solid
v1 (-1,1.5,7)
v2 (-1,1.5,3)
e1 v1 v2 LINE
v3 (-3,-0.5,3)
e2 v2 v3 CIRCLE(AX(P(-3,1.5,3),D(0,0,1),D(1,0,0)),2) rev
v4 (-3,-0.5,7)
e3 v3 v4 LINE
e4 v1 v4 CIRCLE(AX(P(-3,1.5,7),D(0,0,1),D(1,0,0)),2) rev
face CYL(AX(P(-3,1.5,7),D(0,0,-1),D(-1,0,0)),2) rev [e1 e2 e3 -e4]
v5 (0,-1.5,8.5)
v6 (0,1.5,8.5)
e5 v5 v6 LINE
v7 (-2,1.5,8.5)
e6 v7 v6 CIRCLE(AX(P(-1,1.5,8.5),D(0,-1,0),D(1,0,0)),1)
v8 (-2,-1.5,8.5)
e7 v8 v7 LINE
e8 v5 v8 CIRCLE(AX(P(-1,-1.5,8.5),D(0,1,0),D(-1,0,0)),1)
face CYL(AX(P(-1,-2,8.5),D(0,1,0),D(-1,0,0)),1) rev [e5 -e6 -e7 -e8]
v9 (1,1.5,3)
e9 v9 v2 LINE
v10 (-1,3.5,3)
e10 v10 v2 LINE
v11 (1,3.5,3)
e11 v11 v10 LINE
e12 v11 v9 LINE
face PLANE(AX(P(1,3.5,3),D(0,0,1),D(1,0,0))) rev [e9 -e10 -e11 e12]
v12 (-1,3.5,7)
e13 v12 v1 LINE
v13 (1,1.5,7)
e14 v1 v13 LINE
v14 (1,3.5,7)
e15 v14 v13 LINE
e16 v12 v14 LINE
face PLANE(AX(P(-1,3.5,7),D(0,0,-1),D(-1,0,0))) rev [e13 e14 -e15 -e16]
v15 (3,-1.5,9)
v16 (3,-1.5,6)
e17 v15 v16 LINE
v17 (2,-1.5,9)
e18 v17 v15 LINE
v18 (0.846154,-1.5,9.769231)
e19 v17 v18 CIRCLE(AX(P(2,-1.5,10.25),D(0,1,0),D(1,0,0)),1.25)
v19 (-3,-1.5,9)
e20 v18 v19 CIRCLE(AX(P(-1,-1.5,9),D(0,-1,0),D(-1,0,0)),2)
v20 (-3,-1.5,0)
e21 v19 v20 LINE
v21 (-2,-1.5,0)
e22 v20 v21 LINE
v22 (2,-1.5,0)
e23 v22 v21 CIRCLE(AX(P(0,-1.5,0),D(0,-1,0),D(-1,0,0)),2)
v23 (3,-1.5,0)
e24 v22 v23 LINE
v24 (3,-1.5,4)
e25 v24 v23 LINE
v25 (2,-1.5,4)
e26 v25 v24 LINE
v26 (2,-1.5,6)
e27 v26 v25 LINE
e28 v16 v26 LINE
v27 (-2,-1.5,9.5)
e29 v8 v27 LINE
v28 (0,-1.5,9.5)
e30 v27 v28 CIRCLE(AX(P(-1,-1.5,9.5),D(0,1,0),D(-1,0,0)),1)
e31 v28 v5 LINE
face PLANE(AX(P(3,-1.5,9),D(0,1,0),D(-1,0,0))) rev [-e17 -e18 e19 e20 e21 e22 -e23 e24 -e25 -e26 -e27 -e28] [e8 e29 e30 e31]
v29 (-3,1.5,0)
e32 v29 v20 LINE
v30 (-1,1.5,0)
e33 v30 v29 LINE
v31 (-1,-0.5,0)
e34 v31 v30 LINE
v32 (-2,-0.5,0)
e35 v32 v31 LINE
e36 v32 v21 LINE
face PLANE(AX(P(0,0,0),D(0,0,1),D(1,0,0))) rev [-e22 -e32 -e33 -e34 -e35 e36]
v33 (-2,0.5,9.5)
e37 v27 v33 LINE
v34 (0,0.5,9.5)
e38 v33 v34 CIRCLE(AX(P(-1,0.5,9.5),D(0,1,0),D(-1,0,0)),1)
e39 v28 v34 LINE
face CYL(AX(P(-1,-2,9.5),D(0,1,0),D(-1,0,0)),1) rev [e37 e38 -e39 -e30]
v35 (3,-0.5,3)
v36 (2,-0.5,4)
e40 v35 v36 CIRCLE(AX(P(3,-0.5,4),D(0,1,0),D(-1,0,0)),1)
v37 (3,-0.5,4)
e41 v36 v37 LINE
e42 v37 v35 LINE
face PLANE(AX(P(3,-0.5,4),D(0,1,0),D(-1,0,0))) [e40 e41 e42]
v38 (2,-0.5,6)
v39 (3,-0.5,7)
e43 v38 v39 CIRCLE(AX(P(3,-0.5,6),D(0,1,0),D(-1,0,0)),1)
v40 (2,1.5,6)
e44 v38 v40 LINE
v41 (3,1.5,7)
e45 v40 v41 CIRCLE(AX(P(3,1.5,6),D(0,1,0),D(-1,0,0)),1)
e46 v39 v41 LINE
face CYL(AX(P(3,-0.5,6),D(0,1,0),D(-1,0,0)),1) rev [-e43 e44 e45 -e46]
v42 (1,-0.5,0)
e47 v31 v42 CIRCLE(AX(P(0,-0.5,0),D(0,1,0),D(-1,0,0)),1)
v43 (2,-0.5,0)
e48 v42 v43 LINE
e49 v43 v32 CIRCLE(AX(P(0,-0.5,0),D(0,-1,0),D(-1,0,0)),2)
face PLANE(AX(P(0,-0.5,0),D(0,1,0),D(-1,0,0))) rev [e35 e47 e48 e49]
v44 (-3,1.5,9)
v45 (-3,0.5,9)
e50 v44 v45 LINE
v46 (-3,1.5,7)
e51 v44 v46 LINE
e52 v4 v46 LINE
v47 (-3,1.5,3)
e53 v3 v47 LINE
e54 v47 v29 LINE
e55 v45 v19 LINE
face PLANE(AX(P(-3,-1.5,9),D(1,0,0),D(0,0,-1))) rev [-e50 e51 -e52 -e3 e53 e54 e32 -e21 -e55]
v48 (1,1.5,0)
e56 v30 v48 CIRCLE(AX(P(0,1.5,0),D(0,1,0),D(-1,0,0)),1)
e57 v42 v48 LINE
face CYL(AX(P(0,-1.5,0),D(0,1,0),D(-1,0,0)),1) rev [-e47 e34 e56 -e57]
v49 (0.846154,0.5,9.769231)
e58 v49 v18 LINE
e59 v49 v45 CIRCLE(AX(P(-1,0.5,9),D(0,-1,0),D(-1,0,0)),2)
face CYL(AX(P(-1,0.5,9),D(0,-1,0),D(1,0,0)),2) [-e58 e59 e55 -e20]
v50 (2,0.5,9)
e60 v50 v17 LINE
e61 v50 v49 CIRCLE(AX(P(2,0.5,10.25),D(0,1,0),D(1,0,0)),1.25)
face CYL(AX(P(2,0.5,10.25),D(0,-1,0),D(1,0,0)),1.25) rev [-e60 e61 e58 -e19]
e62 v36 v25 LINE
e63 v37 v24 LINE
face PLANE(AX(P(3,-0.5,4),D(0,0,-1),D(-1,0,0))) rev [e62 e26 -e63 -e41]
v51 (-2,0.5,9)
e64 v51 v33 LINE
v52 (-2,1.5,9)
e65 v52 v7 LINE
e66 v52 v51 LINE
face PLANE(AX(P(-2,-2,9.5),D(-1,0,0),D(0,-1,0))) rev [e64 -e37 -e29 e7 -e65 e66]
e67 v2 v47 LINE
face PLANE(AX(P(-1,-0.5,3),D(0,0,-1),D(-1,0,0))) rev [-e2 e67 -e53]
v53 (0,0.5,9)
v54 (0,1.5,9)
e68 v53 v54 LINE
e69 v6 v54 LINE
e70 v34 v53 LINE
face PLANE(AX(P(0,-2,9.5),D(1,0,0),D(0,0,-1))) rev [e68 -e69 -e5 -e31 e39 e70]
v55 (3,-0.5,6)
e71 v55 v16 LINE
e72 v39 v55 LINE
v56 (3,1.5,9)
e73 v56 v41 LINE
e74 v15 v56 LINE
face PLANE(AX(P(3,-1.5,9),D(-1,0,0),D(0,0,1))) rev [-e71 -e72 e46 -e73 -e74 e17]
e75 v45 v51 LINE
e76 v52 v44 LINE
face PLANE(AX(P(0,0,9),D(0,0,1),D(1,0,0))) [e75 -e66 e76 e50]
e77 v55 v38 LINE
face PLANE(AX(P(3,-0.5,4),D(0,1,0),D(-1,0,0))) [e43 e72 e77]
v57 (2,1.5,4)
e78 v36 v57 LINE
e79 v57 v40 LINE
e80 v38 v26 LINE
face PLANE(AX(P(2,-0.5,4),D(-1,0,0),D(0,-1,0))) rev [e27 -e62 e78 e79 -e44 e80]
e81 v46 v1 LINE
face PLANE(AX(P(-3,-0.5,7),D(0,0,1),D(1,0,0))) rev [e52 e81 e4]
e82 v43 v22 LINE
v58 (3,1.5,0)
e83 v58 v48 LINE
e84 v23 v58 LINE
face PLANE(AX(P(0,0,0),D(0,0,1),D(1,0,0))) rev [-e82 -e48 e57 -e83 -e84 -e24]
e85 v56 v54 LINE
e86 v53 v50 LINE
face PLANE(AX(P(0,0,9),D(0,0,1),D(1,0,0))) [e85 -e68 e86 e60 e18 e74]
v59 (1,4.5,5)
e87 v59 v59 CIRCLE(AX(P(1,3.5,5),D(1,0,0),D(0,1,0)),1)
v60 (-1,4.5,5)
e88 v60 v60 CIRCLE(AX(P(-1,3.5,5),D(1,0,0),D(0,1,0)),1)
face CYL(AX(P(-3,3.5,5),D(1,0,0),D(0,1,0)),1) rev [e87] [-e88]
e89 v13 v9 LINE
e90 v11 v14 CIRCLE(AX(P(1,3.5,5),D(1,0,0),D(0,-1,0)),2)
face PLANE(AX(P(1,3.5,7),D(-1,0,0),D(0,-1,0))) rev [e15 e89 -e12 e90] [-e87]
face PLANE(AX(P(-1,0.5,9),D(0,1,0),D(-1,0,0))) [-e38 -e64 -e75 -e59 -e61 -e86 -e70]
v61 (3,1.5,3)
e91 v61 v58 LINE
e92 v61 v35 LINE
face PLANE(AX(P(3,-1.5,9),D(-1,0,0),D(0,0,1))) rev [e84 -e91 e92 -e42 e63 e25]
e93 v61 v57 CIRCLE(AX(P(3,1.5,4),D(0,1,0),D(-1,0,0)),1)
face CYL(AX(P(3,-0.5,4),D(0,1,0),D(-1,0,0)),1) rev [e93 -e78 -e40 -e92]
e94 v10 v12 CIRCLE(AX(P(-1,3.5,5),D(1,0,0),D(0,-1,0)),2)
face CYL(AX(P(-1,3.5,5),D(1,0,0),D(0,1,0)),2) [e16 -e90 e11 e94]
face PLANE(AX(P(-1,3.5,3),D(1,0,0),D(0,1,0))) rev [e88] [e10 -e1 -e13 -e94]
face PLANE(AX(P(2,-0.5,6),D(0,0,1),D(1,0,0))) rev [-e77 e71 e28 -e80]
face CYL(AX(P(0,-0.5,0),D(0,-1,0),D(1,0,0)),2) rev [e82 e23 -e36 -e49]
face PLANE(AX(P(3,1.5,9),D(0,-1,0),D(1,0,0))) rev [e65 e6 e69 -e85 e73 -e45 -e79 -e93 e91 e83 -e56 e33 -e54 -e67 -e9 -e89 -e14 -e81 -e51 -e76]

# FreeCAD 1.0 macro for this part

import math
import FreeCAD as App
import Part
import Sketcher

doc = App.newDocument("Part")
params = doc.addObject("Spreadsheet::Sheet", "Params")
for row, (alias, value) in enumerate([
    ("sketch1_width", "6 mm"),
    ("sketch1_height", "3 mm"),
    ("pad1_length", "9 mm"),
    ("sketch2_radius", "2 mm"),
    ("sketch2_width", "5 mm"),
    ("pad2_length", "2 mm"),
    ("sketch3_radius", "1 mm"),
    ("sketch3_height", "1 mm"),
    ("pocket1_length", "5 mm"),
    ("sketch4_width", "1 mm"),
    ("sketch4_height", "2 mm"),
    ("pocket2_length", "1 mm"),
    ("sketch5_radius", "1 mm"),
    ("sketch5_height", "2 mm"),
    ("pocket3_length", "2 mm"),
    ("sketch6_radius", "2 mm"),
    ("pocket4_length", "1 mm"),
    ("sketch7_radius", "1 mm"),
    ("sketch8_width", "2 mm"),
    ("sketch8_height", "4 mm"),
    ("pad3_length", "2 mm"),
    ("sketch9_radius", "2 mm"),
    ("pad4_length", "2 mm"),
    ("sketch10_diameter", "2 mm"),
    ("sketch11_width", "2 mm"),
    ("sketch11_height", "4 mm"),
    ("pocket7_length", "2 mm"),
    ("sketch12_radius", "2 mm"),
    ("pad5_length", "4 mm"),
], start=1):
    params.set(f"A{row}", alias)
    params.set(f"B{row}", "=" + value)
    params.setAlias(f"B{row}", alias)

body = doc.addObject("PartDesign::Body", "Body")

# Sketch on XY plane
sketch1 = doc.addObject("Sketcher::SketchObject", "Sketch")
body.addObject(sketch1)
sketch1.AttachmentSupport = (doc.XY_Plane, [""])
sketch1.MapMode = "FlatFace"
sketch1.addGeometry([
    Part.LineSegment(App.Vector(-3, 1.5, 0), App.Vector(-3, -1.5, 0)),
    Part.LineSegment(App.Vector(-3, -1.5, 0), App.Vector(3, -1.5, 0)),
    Part.LineSegment(App.Vector(3, -1.5, 0), App.Vector(3, 1.5, 0)),
    Part.LineSegment(App.Vector(3, 1.5, 0), App.Vector(-3, 1.5, 0)),
], False)
sketch1.addConstraint([
    Sketcher.Constraint("Coincident", 0, 2, 1, 1),
    Sketcher.Constraint("Coincident", 1, 2, 2, 1),
    Sketcher.Constraint("Coincident", 2, 2, 3, 1),
    Sketcher.Constraint("Coincident", 3, 2, 0, 1),
    Sketcher.Constraint("Vertical", 0),
    Sketcher.Constraint("Horizontal", 1),
    Sketcher.Constraint("Vertical", 2),
    Sketcher.Constraint("Horizontal", 3),
    Sketcher.Constraint("Symmetric", 0, 2, 2, 2, -1, 1),
    Sketcher.Constraint("DistanceX", 1, 1, 1, 2, 6.0),
    Sketcher.Constraint("DistanceY", 0, 2, 0, 1, 3.0),
])
sketch1.setExpression("Constraints[9]", "Params.sketch1_width")
sketch1.setExpression("Constraints[10]", "Params.sketch1_height")
pad1 = doc.addObject("PartDesign::Pad", "Pad")
body.addObject(pad1)
pad1.Profile = sketch1
pad1.setExpression("Length", "Params.pad1_length")

# Sketch on XZ plane
sketch2 = doc.addObject("Sketcher::SketchObject", "Sketch001")
body.addObject(sketch2)
sketch2.AttachmentSupport = (doc.XZ_Plane, [""])
sketch2.MapMode = "FlatFace"
sketch2.AttachmentOffset = App.Placement(App.Vector(0, 0, 1.5), App.Rotation())
sketch2.addGeometry([
    Part.LineSegment(App.Vector(-3, 9, 0), App.Vector(2, 9, 0)),
    Part.ArcOfCircle(Part.Circle(App.Vector(2, 10.3, 0), App.Vector(0, 0, 1), 1.3), math.radians(-157), math.radians(-90)),
    Part.ArcOfCircle(Part.Circle(App.Vector(-1, 9, 0), App.Vector(0, 0, 1), 2), math.radians(23), math.radians(180)),
], False)
sketch2.addConstraint([
    Sketcher.Constraint("Tangent", 0, 2, 1, 2),
    Sketcher.Constraint("Tangent", 1, 1, 2, 1),
    Sketcher.Constraint("Coincident", 2, 2, 0, 1),
    Sketcher.Constraint("Horizontal", 0),
    Sketcher.Constraint("Horizontal", 2, 3, 0, 2),
    Sketcher.Constraint("Radius", 2, 2.0),
    Sketcher.Constraint("DistanceX", 0, 1, 0, 2, 5.0),
    Sketcher.Constraint("DistanceX", -1, 1, 1, 3, 2.0),
    Sketcher.Constraint("DistanceY", -1, 1, 2, 3, 9.0),
])
sketch2.setExpression("Constraints[5]", "Params.sketch2_radius")
sketch2.setExpression("Constraints[6]", "Params.sketch2_width")
pad2 = doc.addObject("PartDesign::Pad", "Pad001")
body.addObject(pad2)
pad2.Profile = sketch2
pad2.setExpression("Length", "Params.pad2_length")
pad2.Reversed = True

# Sketch on XZ plane
sketch3 = doc.addObject("Sketcher::SketchObject", "Sketch002")
body.addObject(sketch3)
sketch3.AttachmentSupport = (doc.XZ_Plane, [""])
sketch3.MapMode = "FlatFace"
sketch3.AttachmentOffset = App.Placement(App.Vector(0, 0, -0.5), App.Rotation())
sketch3.addGeometry([
    Part.LineSegment(App.Vector(-2, 8.5, 0), App.Vector(-2, 9.5, 0)),
    Part.ArcOfCircle(Part.Circle(App.Vector(-1, 9.5, 0), App.Vector(0, 0, 1), 1), math.radians(0), math.radians(180)),
    Part.LineSegment(App.Vector(0, 9.5, 0), App.Vector(0, 8.5, 0)),
    Part.ArcOfCircle(Part.Circle(App.Vector(-1, 8.5, 0), App.Vector(0, 0, 1), 1), math.radians(180), math.radians(360)),
], False)
sketch3.addConstraint([
    Sketcher.Constraint("Tangent", 0, 2, 1, 2),
    Sketcher.Constraint("Tangent", 1, 1, 2, 1),
    Sketcher.Constraint("Tangent", 2, 2, 3, 2),
    Sketcher.Constraint("Tangent", 3, 1, 0, 1),
    Sketcher.Constraint("Vertical", 0),
    Sketcher.Constraint("Vertical", 2),
    Sketcher.Constraint("PointOnObject", 1, 1, -2),
    Sketcher.Constraint("Radius", 1, 1.0),
    Sketcher.Constraint("DistanceY", 0, 1, 0, 2, 1.0),
    Sketcher.Constraint("DistanceY", -1, 1, 1, 3, 9.5),
])
sketch3.setExpression("Constraints[7]", "Params.sketch3_radius")
sketch3.setExpression("Constraints[8]", "Params.sketch3_height")
pocket1 = doc.addObject("PartDesign::Pocket", "Pocket")
body.addObject(pocket1)
pocket1.Profile = sketch3
pocket1.setExpression("Length", "Params.pocket1_length")
pocket1.Midplane = True

# Sketch on XZ plane
sketch4 = doc.addObject("Sketcher::SketchObject", "Sketch003")
body.addObject(sketch4)
sketch4.AttachmentSupport = (doc.XZ_Plane, [""])
sketch4.MapMode = "FlatFace"
sketch4.AttachmentOffset = App.Placement(App.Vector(0, 0, 1.5), App.Rotation())
sketch4.addGeometry([
    Part.LineSegment(App.Vector(2, 6, 0), App.Vector(2, 4, 0)),
    Part.LineSegment(App.Vector(2, 4, 0), App.Vector(3, 4, 0)),
    Part.LineSegment(App.Vector(3, 4, 0), App.Vector(3, 6, 0)),
    Part.LineSegment(App.Vector(3, 6, 0), App.Vector(2, 6, 0)),
], False)
sketch4.addConstraint([
    Sketcher.Constraint("Coincident", 0, 2, 1, 1),
    Sketcher.Constraint("Coincident", 1, 2, 2, 1),
    Sketcher.Constraint("Coincident", 2, 2, 3, 1),
    Sketcher.Constraint("Coincident", 3, 2, 0, 1),
    Sketcher.Constraint("Vertical", 0),
    Sketcher.Constraint("Horizontal", 1),
    Sketcher.Constraint("Vertical", 2),
    Sketcher.Constraint("Horizontal", 3),
    Sketcher.Constraint("DistanceX", 1, 1, 1, 2, 1.0),
    Sketcher.Constraint("DistanceY", 0, 2, 0, 1, 2.0),
    Sketcher.Constraint("DistanceX", -1, 1, 0, 2, 2.0),
    Sketcher.Constraint("DistanceY", -1, 1, 0, 2, 4.0),
])
sketch4.setExpression("Constraints[8]", "Params.sketch4_width")
sketch4.setExpression("Constraints[9]", "Params.sketch4_height")
pocket2 = doc.addObject("PartDesign::Pocket", "Pocket001")
body.addObject(pocket2)
pocket2.Profile = sketch4
pocket2.setExpression("Length", "Params.pocket2_length")

# Sketch on XZ plane
sketch5 = doc.addObject("Sketcher::SketchObject", "Sketch004")
body.addObject(sketch5)
sketch5.AttachmentSupport = (doc.XZ_Plane, [""])
sketch5.MapMode = "FlatFace"
sketch5.AttachmentOffset = App.Placement(App.Vector(0, 0, -1.5), App.Rotation())
sketch5.addGeometry([
    Part.LineSegment(App.Vector(4, 6, 0), App.Vector(4, 4, 0)),
    Part.ArcOfCircle(Part.Circle(App.Vector(3, 4, 0), App.Vector(0, 0, 1), 1), math.radians(180), math.radians(360)),
    Part.LineSegment(App.Vector(2, 4, 0), App.Vector(2, 6, 0)),
    Part.ArcOfCircle(Part.Circle(App.Vector(3, 6, 0), App.Vector(0, 0, 1), 1), math.radians(0), math.radians(180)),
], False)
sketch5.addConstraint([
    Sketcher.Constraint("Tangent", 0, 2, 1, 2),
    Sketcher.Constraint("Tangent", 1, 1, 2, 1),
    Sketcher.Constraint("Tangent", 2, 2, 3, 2),
    Sketcher.Constraint("Tangent", 3, 1, 0, 1),
    Sketcher.Constraint("Vertical", 0),
    Sketcher.Constraint("Vertical", 2),
    Sketcher.Constraint("Radius", 1, 1.0),
    Sketcher.Constraint("DistanceY", 0, 2, 0, 1, 2.0),
    Sketcher.Constraint("DistanceX", -1, 1, 1, 3, 3.0),
    Sketcher.Constraint("DistanceY", -1, 1, 1, 3, 4.0),
])
sketch5.setExpression("Constraints[6]", "Params.sketch5_radius")
sketch5.setExpression("Constraints[7]", "Params.sketch5_height")
pocket3 = doc.addObject("PartDesign::Pocket", "Pocket002")
body.addObject(pocket3)
pocket3.Profile = sketch5
pocket3.setExpression("Length", "Params.pocket3_length")
pocket3.Reversed = True

# Sketch on XZ plane
sketch6 = doc.addObject("Sketcher::SketchObject", "Sketch005")
body.addObject(sketch6)
sketch6.AttachmentSupport = (doc.XZ_Plane, [""])
sketch6.MapMode = "FlatFace"
sketch6.AttachmentOffset = App.Placement(App.Vector(0, 0, 1.5), App.Rotation())
sketch6.addGeometry([
    Part.LineSegment(App.Vector(-2, 0, 0), App.Vector(2, 0, 0)),
    Part.ArcOfCircle(Part.Circle(App.Vector(0, 0, 0), App.Vector(0, 0, 1), 2), math.radians(0), math.radians(180)),
], False)
sketch6.addConstraint([
    Sketcher.Constraint("Coincident", 0, 1, 1, 2),
    Sketcher.Constraint("Coincident", 1, 1, 0, 2),
    Sketcher.Constraint("Horizontal", 0),
    Sketcher.Constraint("Coincident", 1, 3, -1, 1),
    Sketcher.Constraint("PointOnObject", 0, 1, -1),
    Sketcher.Constraint("Radius", 1, 2.0),
])
sketch6.setExpression("Constraints[5]", "Params.sketch6_radius")
pocket4 = doc.addObject("PartDesign::Pocket", "Pocket003")
body.addObject(pocket4)
pocket4.Profile = sketch6
pocket4.setExpression("Length", "Params.pocket4_length")

# Sketch on XZ plane
sketch7 = doc.addObject("Sketcher::SketchObject", "Sketch006")
body.addObject(sketch7)
sketch7.AttachmentSupport = (doc.XZ_Plane, [""])
sketch7.MapMode = "FlatFace"
sketch7.AttachmentOffset = App.Placement(App.Vector(0, 0, -1.5), App.Rotation())
sketch7.addGeometry([
    Part.LineSegment(App.Vector(1, 0, 0), App.Vector(-1, 0, 0)),
    Part.ArcOfCircle(Part.Circle(App.Vector(0, 0, 0), App.Vector(0, 0, 1), 1), math.radians(0), math.radians(180)),
], False)
sketch7.addConstraint([
    Sketcher.Constraint("Coincident", 0, 1, 1, 1),
    Sketcher.Constraint("Coincident", 1, 2, 0, 2),
    Sketcher.Constraint("Horizontal", 0),
    Sketcher.Constraint("Coincident", 1, 3, -1, 1),
    Sketcher.Constraint("PointOnObject", 0, 1, -1),
    Sketcher.Constraint("Radius", 1, 1.0),
])
sketch7.setExpression("Constraints[5]", "Params.sketch7_radius")
pocket5 = doc.addObject("PartDesign::Pocket", "Pocket004")
body.addObject(pocket5)
pocket5.Profile = sketch7
pocket5.Type = "ThroughAll"
pocket5.Reversed = True

# Sketch on XZ plane
sketch8 = doc.addObject("Sketcher::SketchObject", "Sketch007")
body.addObject(sketch8)
sketch8.AttachmentSupport = (doc.XZ_Plane, [""])
sketch8.MapMode = "FlatFace"
sketch8.AttachmentOffset = App.Placement(App.Vector(0, 0, -1.5), App.Rotation())
sketch8.addGeometry([
    Part.LineSegment(App.Vector(-1, 3, 0), App.Vector(-1, 7, 0)),
    Part.LineSegment(App.Vector(-1, 7, 0), App.Vector(1, 7, 0)),
    Part.LineSegment(App.Vector(1, 7, 0), App.Vector(1, 3, 0)),
    Part.LineSegment(App.Vector(1, 3, 0), App.Vector(-1, 3, 0)),
], False)
sketch8.addConstraint([
    Sketcher.Constraint("Coincident", 0, 2, 1, 1),
    Sketcher.Constraint("Coincident", 1, 2, 2, 1),
    Sketcher.Constraint("Coincident", 2, 2, 3, 1),
    Sketcher.Constraint("Coincident", 3, 2, 0, 1),
    Sketcher.Constraint("Vertical", 0),
    Sketcher.Constraint("Horizontal", 1),
    Sketcher.Constraint("Vertical", 2),
    Sketcher.Constraint("Horizontal", 3),
    Sketcher.Constraint("DistanceX", 1, 1, 1, 2, 2.0),
    Sketcher.Constraint("DistanceY", 0, 1, 0, 2, 4.0),
    Sketcher.Constraint("DistanceX", 0, 2, -1, 1, 1.0),
    Sketcher.Constraint("DistanceY", -1, 1, 0, 2, 7.0),
])
sketch8.setExpression("Constraints[8]", "Params.sketch8_width")
sketch8.setExpression("Constraints[9]", "Params.sketch8_height")
pad3 = doc.addObject("PartDesign::Pad", "Pad002")
body.addObject(pad3)
pad3.Profile = sketch8
pad3.setExpression("Length", "Params.pad3_length")
pad3.Reversed = True

# Sketch on YZ plane
sketch9 = doc.addObject("Sketcher::SketchObject", "Sketch008")
body.addObject(sketch9)
sketch9.AttachmentSupport = (doc.YZ_Plane, [""])
sketch9.MapMode = "FlatFace"
sketch9.AttachmentOffset = App.Placement(App.Vector(0, 0, 1), App.Rotation())
sketch9.addGeometry([
    Part.LineSegment(App.Vector(3.5, 7, 0), App.Vector(3.5, 3, 0)),
    Part.ArcOfCircle(Part.Circle(App.Vector(3.5, 5, 0), App.Vector(0, 0, 1), 2), math.radians(-90), math.radians(90)),
], False)
sketch9.addConstraint([
    Sketcher.Constraint("Coincident", 0, 1, 1, 2),
    Sketcher.Constraint("Coincident", 1, 1, 0, 2),
    Sketcher.Constraint("Vertical", 0),
    Sketcher.Constraint("Vertical", 1, 3, 0, 1),
    Sketcher.Constraint("Radius", 1, 2.0),
    Sketcher.Constraint("DistanceY", -1, 1, 1, 3, 5.0),
    Sketcher.Constraint("DistanceX", -1, 1, 1, 3, 3.5),
])
sketch9.setExpression("Constraints[4]", "Params.sketch9_radius")
pad4 = doc.addObject("PartDesign::Pad", "Pad003")
body.addObject(pad4)
pad4.Profile = sketch9
pad4.setExpression("Length", "Params.pad4_length")
pad4.Reversed = True

# Sketch on YZ plane
sketch10 = doc.addObject("Sketcher::SketchObject", "Sketch009")
body.addObject(sketch10)
sketch10.AttachmentSupport = (doc.YZ_Plane, [""])
sketch10.MapMode = "FlatFace"
sketch10.AttachmentOffset = App.Placement(App.Vector(0, 0, 1), App.Rotation())
sketch10.addGeometry(Part.Circle(App.Vector(3.5, 5, 0), App.Vector(0, 0, 1), 1), False)
sketch10.addConstraint([
    Sketcher.Constraint("Diameter", 0, 2.0),
    Sketcher.Constraint("DistanceY", -1, 1, 0, 3, 5.0),
    Sketcher.Constraint("DistanceX", -1, 1, 0, 3, 3.5),
])
sketch10.setExpression("Constraints[0]", "Params.sketch10_diameter")
pocket6 = doc.addObject("PartDesign::Pocket", "Pocket005")
body.addObject(pocket6)
pocket6.Profile = sketch10
pocket6.Type = "ThroughAll"

# Sketch on XZ plane
sketch11 = doc.addObject("Sketcher::SketchObject", "Sketch010")
body.addObject(sketch11)
sketch11.AttachmentSupport = (doc.XZ_Plane, [""])
sketch11.MapMode = "FlatFace"
sketch11.AttachmentOffset = App.Placement(App.Vector(0, 0, -1.5), App.Rotation())
sketch11.addGeometry([
    Part.LineSegment(App.Vector(-3, 3, 0), App.Vector(-3, 7, 0)),
    Part.LineSegment(App.Vector(-3, 7, 0), App.Vector(-1, 7, 0)),
    Part.LineSegment(App.Vector(-1, 7, 0), App.Vector(-1, 3, 0)),
    Part.LineSegment(App.Vector(-1, 3, 0), App.Vector(-3, 3, 0)),
], False)
sketch11.addConstraint([
    Sketcher.Constraint("Coincident", 0, 2, 1, 1),
    Sketcher.Constraint("Coincident", 1, 2, 2, 1),
    Sketcher.Constraint("Coincident", 2, 2, 3, 1),
    Sketcher.Constraint("Coincident", 3, 2, 0, 1),
    Sketcher.Constraint("Vertical", 0),
    Sketcher.Constraint("Horizontal", 1),
    Sketcher.Constraint("Vertical", 2),
    Sketcher.Constraint("Horizontal", 3),
    Sketcher.Constraint("DistanceX", 1, 1, 1, 2, 2.0),
    Sketcher.Constraint("DistanceY", 0, 1, 0, 2, 4.0),
    Sketcher.Constraint("DistanceX", 0, 2, -1, 1, 3.0),
    Sketcher.Constraint("DistanceY", -1, 1, 0, 2, 7.0),
])
sketch11.setExpression("Constraints[8]", "Params.sketch11_width")
sketch11.setExpression("Constraints[9]", "Params.sketch11_height")
pocket7 = doc.addObject("PartDesign::Pocket", "Pocket006")
body.addObject(pocket7)
pocket7.Profile = sketch11
pocket7.setExpression("Length", "Params.pocket7_length")
pocket7.Reversed = True

# Sketch on XY plane
sketch12 = doc.addObject("Sketcher::SketchObject", "Sketch011")
body.addObject(sketch12)
sketch12.AttachmentSupport = (doc.XY_Plane, [""])
sketch12.MapMode = "FlatFace"
sketch12.AttachmentOffset = App.Placement(App.Vector(0, 0, 3), App.Rotation())
sketch12.addGeometry([
    Part.ArcOfCircle(Part.Circle(App.Vector(-3, 1.5, 0), App.Vector(0, 0, 1), 2), math.radians(-90), math.radians(0)),
    Part.LineSegment(App.Vector(-3, -0.5, 0), App.Vector(-1, -0.5, 0)),
    Part.LineSegment(App.Vector(-1, -0.5, 0), App.Vector(-1, 1.5, 0)),
], False)
sketch12.addConstraint([
    Sketcher.Constraint("Tangent", 0, 1, 1, 1),
    Sketcher.Constraint("Coincident", 1, 2, 2, 1),
    Sketcher.Constraint("Tangent", 2, 2, 0, 2),
    Sketcher.Constraint("Horizontal", 1),
    Sketcher.Constraint("Vertical", 2),
    Sketcher.Constraint("Radius", 0, 2.0),
    Sketcher.Constraint("DistanceX", 0, 3, -1, 1, 3.0),
    Sketcher.Constraint("DistanceY", -1, 1, 0, 3, 1.5),
])
sketch12.setExpression("Constraints[5]", "Params.sketch12_radius")
pad5 = doc.addObject("PartDesign::Pad", "Pad004")
body.addObject(pad5)
pad5.Profile = sketch12
pad5.setExpression("Length", "Params.pad5_length")

doc.recompute()
